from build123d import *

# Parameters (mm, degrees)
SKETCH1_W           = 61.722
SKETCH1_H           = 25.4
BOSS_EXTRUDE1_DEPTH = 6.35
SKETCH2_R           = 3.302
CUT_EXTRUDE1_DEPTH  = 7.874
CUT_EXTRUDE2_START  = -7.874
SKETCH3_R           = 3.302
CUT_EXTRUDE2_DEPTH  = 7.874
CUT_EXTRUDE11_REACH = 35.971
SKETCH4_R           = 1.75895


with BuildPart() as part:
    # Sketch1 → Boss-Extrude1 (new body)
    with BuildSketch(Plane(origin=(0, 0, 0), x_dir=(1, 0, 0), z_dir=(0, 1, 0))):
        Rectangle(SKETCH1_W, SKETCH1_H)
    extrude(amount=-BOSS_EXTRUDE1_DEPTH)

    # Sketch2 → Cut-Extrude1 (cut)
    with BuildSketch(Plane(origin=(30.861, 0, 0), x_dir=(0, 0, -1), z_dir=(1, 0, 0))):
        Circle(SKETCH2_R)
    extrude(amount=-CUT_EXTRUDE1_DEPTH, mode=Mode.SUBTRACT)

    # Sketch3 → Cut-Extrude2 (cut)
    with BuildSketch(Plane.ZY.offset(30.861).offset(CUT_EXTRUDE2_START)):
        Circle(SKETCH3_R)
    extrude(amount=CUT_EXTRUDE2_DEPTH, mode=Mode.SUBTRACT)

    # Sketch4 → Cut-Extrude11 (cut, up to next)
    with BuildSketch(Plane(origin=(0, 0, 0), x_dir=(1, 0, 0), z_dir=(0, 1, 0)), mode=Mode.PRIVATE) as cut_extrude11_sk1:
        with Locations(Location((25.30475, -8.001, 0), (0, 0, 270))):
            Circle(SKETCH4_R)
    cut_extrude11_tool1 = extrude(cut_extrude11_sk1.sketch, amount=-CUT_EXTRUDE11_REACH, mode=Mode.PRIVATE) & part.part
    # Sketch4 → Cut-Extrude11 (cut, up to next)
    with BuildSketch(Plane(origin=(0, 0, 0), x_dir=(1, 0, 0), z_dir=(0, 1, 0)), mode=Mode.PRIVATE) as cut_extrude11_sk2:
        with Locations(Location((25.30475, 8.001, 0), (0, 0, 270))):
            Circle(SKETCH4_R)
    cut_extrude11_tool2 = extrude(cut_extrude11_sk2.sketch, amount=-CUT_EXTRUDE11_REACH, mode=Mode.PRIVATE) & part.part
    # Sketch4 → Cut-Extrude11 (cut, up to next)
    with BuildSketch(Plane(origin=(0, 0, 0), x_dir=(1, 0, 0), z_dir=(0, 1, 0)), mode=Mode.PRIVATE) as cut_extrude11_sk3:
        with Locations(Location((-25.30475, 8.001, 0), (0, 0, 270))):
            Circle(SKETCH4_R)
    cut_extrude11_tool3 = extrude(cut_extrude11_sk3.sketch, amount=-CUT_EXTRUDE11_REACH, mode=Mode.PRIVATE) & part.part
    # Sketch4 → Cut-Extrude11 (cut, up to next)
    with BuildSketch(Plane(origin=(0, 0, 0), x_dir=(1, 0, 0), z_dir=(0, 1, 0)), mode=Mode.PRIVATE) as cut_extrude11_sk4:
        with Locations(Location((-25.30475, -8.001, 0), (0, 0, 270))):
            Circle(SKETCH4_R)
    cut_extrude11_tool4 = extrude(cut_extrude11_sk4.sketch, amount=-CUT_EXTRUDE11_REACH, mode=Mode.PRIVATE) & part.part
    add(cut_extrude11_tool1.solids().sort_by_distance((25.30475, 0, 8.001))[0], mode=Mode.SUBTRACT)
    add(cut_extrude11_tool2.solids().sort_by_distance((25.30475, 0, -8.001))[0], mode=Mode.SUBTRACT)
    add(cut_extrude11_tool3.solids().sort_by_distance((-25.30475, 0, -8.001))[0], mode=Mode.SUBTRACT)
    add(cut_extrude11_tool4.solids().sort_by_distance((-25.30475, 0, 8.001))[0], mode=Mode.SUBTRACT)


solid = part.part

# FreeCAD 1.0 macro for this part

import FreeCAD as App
import Part
import Sketcher
from FreeCAD import Vector
Q = App.Units.Quantity

doc = App.newDocument("Part")
body = doc.addObject("PartDesign::Body", "Body")

# Sketch on XZ plane
sketch1 = body.newObject("Sketcher::SketchObject", "Sketch")
sketch1.AttachmentSupport = (doc.getObject("XZ_Plane"), [""])
sketch1.MapMode = "FlatFace"
sketch1.addGeometry(Part.LineSegment(Vector(-30.861, -12.7, 0), Vector(-30.861, 12.7, 0)), False)
sketch1.addGeometry(Part.LineSegment(Vector(-30.861, 12.7, 0), Vector(30.861, 12.7, 0)), False)
sketch1.addGeometry(Part.LineSegment(Vector(30.861, 12.7, 0), Vector(30.861, -12.7, 0)), False)
sketch1.addGeometry(Part.LineSegment(Vector(30.861, -12.7, 0), Vector(-30.861, -12.7, 0)), False)
sketch1.addConstraint(Sketcher.Constraint("Coincident", 0, 2, 1, 1))
sketch1.addConstraint(Sketcher.Constraint("Coincident", 1, 2, 2, 1))
sketch1.addConstraint(Sketcher.Constraint("Coincident", 2, 2, 3, 1))
sketch1.addConstraint(Sketcher.Constraint("Coincident", 3, 2, 0, 1))
sketch1.addConstraint(Sketcher.Constraint("Vertical", 0))
sketch1.addConstraint(Sketcher.Constraint("Horizontal", 1))
sketch1.addConstraint(Sketcher.Constraint("Vertical", 2))
sketch1.addConstraint(Sketcher.Constraint("Horizontal", 3))
sketch1.addConstraint(Sketcher.Constraint("Symmetric", 0, 2, 2, 2, -1, 1))
sketch1.addConstraint(Sketcher.Constraint("DistanceY", 0, 1, 0, 2, Q("1 in")))
sketch1.addConstraint(Sketcher.Constraint("DistanceX", 1, 1, 1, 2, Q("2.43 in")))
pad1 = body.newObject("PartDesign::Pad", "Pad")
pad1.Profile = sketch1
pad1.Length = Q("0.25 in")

# Sketch on YZ plane
sketch2 = body.newObject("Sketcher::SketchObject", "Sketch001")
sketch2.AttachmentSupport = (doc.getObject("YZ_Plane"), [""])
sketch2.MapMode = "FlatFace"
sketch2.AttachmentOffset = App.Placement(Vector(0, 0, 1.215 * 25.4), App.Rotation())
sketch2.addGeometry(Part.Circle(Vector(0, 0, 0), Vector(0, 0, 1), 3.302), False)
sketch2.addConstraint(Sketcher.Constraint("Coincident", 0, 3, -1, 1))
sketch2.addConstraint(Sketcher.Constraint("Diameter", 0, Q("0.26 in")))
pocket1 = body.newObject("PartDesign::Pocket", "Pocket")
pocket1.Profile = sketch2
pocket1.Length = Q("0.31 in")

# Sketch on YZ plane
sketch3 = body.newObject("Sketcher::SketchObject", "Sketch002")
sketch3.AttachmentSupport = (doc.getObject("YZ_Plane"), [""])
sketch3.MapMode = "FlatFace"
sketch3.AttachmentOffset = App.Placement(Vector(0, 0, -0.905 * 25.4), App.Rotation())
sketch3.addGeometry(Part.Circle(Vector(0, 0, 0), Vector(0, 0, 1), 3.302), False)
sketch3.addConstraint(Sketcher.Constraint("Coincident", 0, 3, -1, 1))
sketch3.addConstraint(Sketcher.Constraint("Diameter", 0, Q("0.26 in")))
pocket2 = body.newObject("PartDesign::Pocket", "Pocket001")
pocket2.Profile = sketch3
pocket2.Length = Q("0.31 in")

# Sketch on XZ plane
sketch4 = body.newObject("Sketcher::SketchObject", "Sketch003")
sketch4.AttachmentSupport = (doc.getObject("XZ_Plane"), [""])
sketch4.MapMode = "FlatFace"
sketch4.addGeometry(Part.Circle(Vector(25.30475, 8.001, 0), Vector(0, 0, 1), 1.75895), False)
sketch4.addConstraint(Sketcher.Constraint("Diameter", 0, Q("0.1385 in")))
sketch4.addConstraint(Sketcher.Constraint("DistanceY", -1, 1, 0, 3, Q("0.315 in")))
sketch4.addConstraint(Sketcher.Constraint("DistanceX", -1, 1, 0, 3, Q("25.30475 mm")))
pocket3 = body.newObject("PartDesign::Pocket", "Pocket002")
pocket3.Profile = sketch4
pocket3.Type = "UpToFirst"
pocket3.Reversed = True

# Sketch on XZ plane
sketch5 = body.newObject("Sketcher::SketchObject", "Sketch004")
sketch5.AttachmentSupport = (doc.getObject("XZ_Plane"), [""])
sketch5.MapMode = "FlatFace"
sketch5.addGeometry(Part.Circle(Vector(25.30475, -8.001, 0), Vector(0, 0, 1), 1.75895), False)
sketch5.addConstraint(Sketcher.Constraint("Diameter", 0, Q("0.1385 in")))
sketch5.addConstraint(Sketcher.Constraint("DistanceY", 0, 3, -1, 1, Q("0.315 in")))
sketch5.addConstraint(Sketcher.Constraint("DistanceX", -1, 1, 0, 3, Q("25.30475 mm")))
pocket4 = body.newObject("PartDesign::Pocket", "Pocket003")
pocket4.Profile = sketch5
pocket4.Type = "UpToFirst"
pocket4.Reversed = True

# Sketch on XZ plane
sketch6 = body.newObject("Sketcher::SketchObject", "Sketch005")
sketch6.AttachmentSupport = (doc.getObject("XZ_Plane"), [""])
sketch6.MapMode = "FlatFace"
sketch6.addGeometry(Part.Circle(Vector(-25.30475, -8.001, 0), Vector(0, 0, 1), 1.75895), False)
sketch6.addConstraint(Sketcher.Constraint("Diameter", 0, Q("0.1385 in")))
sketch6.addConstraint(Sketcher.Constraint("DistanceY", 0, 3, -1, 1, Q("0.315 in")))
sketch6.addConstraint(Sketcher.Constraint("DistanceX", 0, 3, -1, 1, Q("25.30475 mm")))
pocket5 = body.newObject("PartDesign::Pocket", "Pocket004")
pocket5.Profile = sketch6
pocket5.Type = "UpToFirst"
pocket5.Reversed = True

# Sketch on XZ plane
sketch7 = body.newObject("Sketcher::SketchObject", "Sketch006")
sketch7.AttachmentSupport = (doc.getObject("XZ_Plane"), [""])
sketch7.MapMode = "FlatFace"
sketch7.addGeometry(Part.Circle(Vector(-25.30475, 8.001, 0), Vector(0, 0, 1), 1.75895), False)
sketch7.addConstraint(Sketcher.Constraint("Diameter", 0, Q("0.1385 in")))
sketch7.addConstraint(Sketcher.Constraint("DistanceY", -1, 1, 0, 3, Q("0.315 in")))
sketch7.addConstraint(Sketcher.Constraint("DistanceX", 0, 3, -1, 1, Q("25.30475 mm")))
pocket6 = body.newObject("PartDesign::Pocket", "Pocket005")
pocket6.Profile = sketch7
pocket6.Type = "UpToFirst"
pocket6.Reversed = True

doc.recompute()
